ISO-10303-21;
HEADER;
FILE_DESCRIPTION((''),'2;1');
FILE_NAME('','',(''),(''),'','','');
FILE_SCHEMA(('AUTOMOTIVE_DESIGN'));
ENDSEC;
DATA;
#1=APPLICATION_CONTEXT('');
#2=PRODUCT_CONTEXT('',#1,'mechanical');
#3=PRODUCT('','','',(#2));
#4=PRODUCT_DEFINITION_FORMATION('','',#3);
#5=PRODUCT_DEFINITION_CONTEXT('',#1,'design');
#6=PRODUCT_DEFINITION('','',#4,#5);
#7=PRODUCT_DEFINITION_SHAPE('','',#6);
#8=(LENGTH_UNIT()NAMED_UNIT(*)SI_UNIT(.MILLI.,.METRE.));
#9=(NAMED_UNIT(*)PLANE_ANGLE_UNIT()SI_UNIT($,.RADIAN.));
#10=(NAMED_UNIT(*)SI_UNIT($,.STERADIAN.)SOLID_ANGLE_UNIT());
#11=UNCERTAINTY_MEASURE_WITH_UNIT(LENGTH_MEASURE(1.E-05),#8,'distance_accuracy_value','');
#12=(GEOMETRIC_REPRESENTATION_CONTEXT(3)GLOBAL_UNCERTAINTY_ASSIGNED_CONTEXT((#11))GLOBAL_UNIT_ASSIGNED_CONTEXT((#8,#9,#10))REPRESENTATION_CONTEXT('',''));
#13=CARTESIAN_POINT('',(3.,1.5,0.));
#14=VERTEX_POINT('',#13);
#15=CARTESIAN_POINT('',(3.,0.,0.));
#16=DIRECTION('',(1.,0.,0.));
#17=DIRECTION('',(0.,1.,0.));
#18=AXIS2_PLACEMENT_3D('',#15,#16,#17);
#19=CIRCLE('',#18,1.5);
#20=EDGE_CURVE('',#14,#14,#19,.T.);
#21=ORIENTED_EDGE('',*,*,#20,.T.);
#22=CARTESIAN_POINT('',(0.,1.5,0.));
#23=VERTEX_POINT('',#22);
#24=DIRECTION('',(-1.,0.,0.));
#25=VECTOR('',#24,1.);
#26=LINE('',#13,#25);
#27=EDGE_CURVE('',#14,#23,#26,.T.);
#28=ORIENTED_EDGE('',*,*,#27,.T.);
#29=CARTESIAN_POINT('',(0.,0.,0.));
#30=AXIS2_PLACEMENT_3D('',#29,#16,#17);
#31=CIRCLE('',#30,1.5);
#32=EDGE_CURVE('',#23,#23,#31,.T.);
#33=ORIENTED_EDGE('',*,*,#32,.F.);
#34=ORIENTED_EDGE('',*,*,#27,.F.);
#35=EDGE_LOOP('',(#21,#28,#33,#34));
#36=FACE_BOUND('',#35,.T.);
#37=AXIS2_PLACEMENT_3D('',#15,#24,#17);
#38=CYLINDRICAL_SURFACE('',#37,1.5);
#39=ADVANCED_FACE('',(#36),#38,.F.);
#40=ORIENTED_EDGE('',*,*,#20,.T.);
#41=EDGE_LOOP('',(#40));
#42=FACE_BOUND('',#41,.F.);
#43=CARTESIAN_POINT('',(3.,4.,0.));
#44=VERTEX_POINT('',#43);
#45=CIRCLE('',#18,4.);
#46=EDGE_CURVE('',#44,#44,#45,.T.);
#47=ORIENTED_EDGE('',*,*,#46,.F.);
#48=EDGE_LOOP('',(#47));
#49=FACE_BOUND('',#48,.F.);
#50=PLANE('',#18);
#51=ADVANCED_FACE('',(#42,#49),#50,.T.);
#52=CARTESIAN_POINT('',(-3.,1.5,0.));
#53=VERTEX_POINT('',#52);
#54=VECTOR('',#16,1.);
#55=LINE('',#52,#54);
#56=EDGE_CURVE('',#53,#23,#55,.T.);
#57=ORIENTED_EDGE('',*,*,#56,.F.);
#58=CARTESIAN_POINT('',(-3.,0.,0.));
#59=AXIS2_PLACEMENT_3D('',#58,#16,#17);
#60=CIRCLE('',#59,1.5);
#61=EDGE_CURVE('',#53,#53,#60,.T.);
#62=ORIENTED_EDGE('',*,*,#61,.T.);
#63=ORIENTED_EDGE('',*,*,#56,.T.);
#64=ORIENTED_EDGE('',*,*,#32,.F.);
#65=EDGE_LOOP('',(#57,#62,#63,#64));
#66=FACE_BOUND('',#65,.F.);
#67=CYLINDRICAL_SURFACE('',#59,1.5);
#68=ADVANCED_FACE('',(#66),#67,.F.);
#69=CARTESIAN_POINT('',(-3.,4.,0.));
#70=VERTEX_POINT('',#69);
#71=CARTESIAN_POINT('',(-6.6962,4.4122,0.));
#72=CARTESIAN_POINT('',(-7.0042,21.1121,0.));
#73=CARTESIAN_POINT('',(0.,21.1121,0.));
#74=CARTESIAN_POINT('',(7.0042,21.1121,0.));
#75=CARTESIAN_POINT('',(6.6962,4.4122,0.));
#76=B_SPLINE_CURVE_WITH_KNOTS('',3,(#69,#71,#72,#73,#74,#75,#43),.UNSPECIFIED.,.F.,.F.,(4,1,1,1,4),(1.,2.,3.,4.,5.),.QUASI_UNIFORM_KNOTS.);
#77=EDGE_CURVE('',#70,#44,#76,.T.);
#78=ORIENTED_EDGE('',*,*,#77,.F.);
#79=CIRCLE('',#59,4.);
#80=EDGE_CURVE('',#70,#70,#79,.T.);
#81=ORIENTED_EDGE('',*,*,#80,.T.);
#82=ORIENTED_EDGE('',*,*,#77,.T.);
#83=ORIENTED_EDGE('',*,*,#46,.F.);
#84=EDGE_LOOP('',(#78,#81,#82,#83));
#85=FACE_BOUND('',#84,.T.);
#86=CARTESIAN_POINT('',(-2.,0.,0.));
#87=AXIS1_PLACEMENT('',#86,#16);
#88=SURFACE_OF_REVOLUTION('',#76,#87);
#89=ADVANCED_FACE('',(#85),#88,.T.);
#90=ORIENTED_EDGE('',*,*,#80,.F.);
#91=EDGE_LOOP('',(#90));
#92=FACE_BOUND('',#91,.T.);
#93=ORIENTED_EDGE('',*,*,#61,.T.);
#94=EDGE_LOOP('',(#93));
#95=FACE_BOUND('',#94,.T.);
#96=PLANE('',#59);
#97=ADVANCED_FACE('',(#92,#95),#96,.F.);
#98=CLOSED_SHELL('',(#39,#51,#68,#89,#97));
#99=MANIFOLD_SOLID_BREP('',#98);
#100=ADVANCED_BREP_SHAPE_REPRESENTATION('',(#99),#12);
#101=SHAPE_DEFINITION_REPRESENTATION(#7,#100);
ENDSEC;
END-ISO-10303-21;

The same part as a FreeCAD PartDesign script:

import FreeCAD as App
import Part
import Sketcher
from FreeCAD import Vector

doc = App.newDocument("Part")
params = doc.addObject("Spreadsheet::Sheet", "Params")
for row, (alias, value) in enumerate([
    ("sketch1_height", "2.5 mm"),
    ("revolution_angle", "360 deg"),
], start=1):
    params.set(f"A{row}", alias)
    params.set(f"B{row}", "=" + value)
    params.setAlias(f"B{row}", alias)

body = doc.addObject("PartDesign::Body", "Body")

# Sketch on XY plane
sketch1 = body.newObject("Sketcher::SketchObject", "Sketch")
sketch1.AttachmentSupport = (doc.getObject("XY_Plane"), [""])
sketch1.MapMode = "FlatFace"
sketch1.addGeometry(Part.LineSegment(Vector(-3, 4, 0), Vector(-3, 1.5, 0)), False)
sketch1.addGeometry(Part.LineSegment(Vector(-3, 1.5, 0), Vector(3, 1.5, 0)), False)
sketch1.addGeometry(Part.LineSegment(Vector(3, 1.5, 0), Vector(3, 4, 0)), False)
sketch1.addGeometry(Part.BSplineCurve([Vector(-3, 4, 0), Vector(-6.6962, 4.4122, 0), Vector(-7.0042, 21.1121, 0), Vector(0, 21.1121, 0), Vector(7.0042, 21.1121, 0), Vector(6.6962, 4.4122, 0), Vector(3, 4, 0)], [4, 1, 1, 1, 4], [1, 2, 3, 4, 5], False, 3, [1, 1, 1, 1, 1, 1, 1], False), False)
sketch1.addConstraint(Sketcher.Constraint("Block", 3))
sketch1.addConstraint(Sketcher.Constraint("Coincident", 0, 2, 1, 1))
sketch1.addConstraint(Sketcher.Constraint("Coincident", 1, 2, 2, 1))
sketch1.addConstraint(Sketcher.Constraint("Coincident", 2, 2, 3, 2))
sketch1.addConstraint(Sketcher.Constraint("Coincident", 3, 1, 0, 1))
sketch1.addConstraint(Sketcher.Constraint("Vertical", 0))
sketch1.addConstraint(Sketcher.Constraint("Horizontal", 1))
sketch1.addConstraint(Sketcher.Constraint("Vertical", 2))
sketch1.addConstraint(Sketcher.Constraint("DistanceY", 0, 2, 0, 1, 2.5))
sketch1.setExpression("Constraints[8]", "Params.sketch1_height")
revolution = body.newObject("PartDesign::Revolution", "Revolution")
revolution.Profile = sketch1
revolution.ReferenceAxis = (sketch1, ["H_Axis"])
revolution.setExpression("Angle", "Params.revolution_angle")

doc.recompute()
